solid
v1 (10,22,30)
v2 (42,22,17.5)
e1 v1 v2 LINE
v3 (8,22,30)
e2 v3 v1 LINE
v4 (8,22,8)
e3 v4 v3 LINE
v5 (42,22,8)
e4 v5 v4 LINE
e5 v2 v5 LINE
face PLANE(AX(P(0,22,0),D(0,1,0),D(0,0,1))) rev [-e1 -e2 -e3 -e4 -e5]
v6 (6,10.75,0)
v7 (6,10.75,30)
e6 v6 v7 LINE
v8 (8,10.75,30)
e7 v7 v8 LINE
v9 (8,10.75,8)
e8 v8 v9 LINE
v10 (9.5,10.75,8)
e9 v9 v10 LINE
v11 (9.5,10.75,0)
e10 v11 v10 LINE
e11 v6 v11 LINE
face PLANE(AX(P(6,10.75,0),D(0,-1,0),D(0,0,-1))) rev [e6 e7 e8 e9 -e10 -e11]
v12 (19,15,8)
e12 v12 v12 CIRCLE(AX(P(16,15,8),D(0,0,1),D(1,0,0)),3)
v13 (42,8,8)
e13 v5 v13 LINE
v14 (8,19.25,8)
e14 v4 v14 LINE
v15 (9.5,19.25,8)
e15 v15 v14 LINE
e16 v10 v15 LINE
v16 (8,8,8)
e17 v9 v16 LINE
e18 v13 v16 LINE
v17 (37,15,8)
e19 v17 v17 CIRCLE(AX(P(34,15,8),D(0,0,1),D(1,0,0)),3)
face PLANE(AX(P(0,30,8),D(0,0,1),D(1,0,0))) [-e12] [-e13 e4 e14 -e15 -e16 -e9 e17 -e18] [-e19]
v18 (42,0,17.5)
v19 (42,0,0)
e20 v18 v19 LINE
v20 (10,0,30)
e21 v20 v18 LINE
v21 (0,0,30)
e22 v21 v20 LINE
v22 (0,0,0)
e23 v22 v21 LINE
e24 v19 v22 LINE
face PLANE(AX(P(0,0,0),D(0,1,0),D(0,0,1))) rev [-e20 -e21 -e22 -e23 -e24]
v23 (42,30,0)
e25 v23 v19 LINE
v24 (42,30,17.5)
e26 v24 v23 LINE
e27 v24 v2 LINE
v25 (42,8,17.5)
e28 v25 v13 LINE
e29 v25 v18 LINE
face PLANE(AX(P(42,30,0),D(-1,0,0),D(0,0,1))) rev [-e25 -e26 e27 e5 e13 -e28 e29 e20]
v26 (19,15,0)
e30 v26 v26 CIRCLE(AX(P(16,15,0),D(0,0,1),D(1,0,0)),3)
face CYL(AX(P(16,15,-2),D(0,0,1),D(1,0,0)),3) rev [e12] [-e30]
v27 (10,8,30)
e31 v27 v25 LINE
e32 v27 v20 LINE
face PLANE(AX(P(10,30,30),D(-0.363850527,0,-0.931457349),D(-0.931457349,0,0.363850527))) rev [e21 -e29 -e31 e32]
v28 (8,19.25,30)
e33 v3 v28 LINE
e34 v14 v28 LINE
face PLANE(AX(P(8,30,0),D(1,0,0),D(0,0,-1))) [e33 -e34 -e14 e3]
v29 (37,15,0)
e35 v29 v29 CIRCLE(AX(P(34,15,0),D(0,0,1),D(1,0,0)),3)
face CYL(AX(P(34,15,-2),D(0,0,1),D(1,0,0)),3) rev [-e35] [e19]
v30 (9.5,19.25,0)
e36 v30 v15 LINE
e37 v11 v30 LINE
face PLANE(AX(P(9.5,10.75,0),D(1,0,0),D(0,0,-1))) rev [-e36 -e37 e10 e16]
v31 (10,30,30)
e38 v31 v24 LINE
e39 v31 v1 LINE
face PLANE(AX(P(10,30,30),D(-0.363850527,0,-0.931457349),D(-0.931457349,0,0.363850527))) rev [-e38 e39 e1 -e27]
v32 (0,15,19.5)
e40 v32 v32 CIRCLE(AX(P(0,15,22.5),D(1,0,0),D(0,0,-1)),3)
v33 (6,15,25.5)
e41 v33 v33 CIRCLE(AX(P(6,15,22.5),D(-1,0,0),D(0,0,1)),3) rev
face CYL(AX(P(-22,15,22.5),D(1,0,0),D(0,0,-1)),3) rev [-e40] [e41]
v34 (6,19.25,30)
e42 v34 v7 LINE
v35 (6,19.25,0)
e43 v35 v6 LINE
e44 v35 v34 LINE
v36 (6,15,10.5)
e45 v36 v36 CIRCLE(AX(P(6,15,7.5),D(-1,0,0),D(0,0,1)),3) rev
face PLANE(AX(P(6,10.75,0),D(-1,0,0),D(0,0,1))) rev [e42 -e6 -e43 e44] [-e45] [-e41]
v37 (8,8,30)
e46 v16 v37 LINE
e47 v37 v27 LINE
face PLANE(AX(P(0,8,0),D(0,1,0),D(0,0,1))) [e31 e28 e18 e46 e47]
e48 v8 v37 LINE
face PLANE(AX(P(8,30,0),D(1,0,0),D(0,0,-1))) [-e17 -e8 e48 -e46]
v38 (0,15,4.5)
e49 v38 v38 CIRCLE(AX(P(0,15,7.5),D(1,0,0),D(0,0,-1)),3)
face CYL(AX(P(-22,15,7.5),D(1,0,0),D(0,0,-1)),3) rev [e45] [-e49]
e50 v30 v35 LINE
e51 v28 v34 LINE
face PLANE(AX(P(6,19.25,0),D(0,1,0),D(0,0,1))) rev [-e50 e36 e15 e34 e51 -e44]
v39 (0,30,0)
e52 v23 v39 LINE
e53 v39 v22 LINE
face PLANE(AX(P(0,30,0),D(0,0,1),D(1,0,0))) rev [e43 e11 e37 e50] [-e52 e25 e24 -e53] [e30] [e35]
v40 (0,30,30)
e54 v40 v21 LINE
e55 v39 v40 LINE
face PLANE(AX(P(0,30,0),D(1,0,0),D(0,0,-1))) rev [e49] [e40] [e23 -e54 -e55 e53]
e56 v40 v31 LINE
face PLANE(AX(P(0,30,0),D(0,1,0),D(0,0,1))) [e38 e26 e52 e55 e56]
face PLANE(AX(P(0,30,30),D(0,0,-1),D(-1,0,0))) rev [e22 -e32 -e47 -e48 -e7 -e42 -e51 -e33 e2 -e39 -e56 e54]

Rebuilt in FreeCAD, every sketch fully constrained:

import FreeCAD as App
import Part
import Sketcher


def faces_at(feature, points):
    """Names of the faces that lie closest to the given points."""
    faces = feature.Shape.Faces
    near = lambda p: min(range(len(faces)), key=lambda i: faces[i].distToShape(Part.Vertex(*p))[0])
    return sorted({f"Face{near(p) + 1}" for p in points})

doc = App.newDocument("Part")
body = doc.addObject("PartDesign::Body", "Body")

# Sketch on XZ plane
sketch1 = body.newObject("Sketcher::SketchObject", "Sketch")
sketch1.AttachmentSupport = (doc.getObject("XZ_Plane"), [""])
sketch1.MapMode = "FlatFace"
sketch1.addGeometry([
    Part.LineSegment(App.Vector(10, 30, 0), App.Vector(42, 17.5, 0)),  # 0
    Part.LineSegment(App.Vector(42, 17.5, 0), App.Vector(42, 0, 0)),  # 1
    Part.LineSegment(App.Vector(42, 0, 0), App.Vector(0, 0, 0)),  # 2
    Part.LineSegment(App.Vector(0, 0, 0), App.Vector(0, 30, 0)),  # 3
    Part.LineSegment(App.Vector(0, 30, 0), App.Vector(10, 30, 0)),  # 4
], False)
sketch1.addConstraint([
    Sketcher.Constraint("Coincident", 0, 2, 1, 1),
    Sketcher.Constraint("Coincident", 1, 2, 2, 1),
    Sketcher.Constraint("Coincident", 2, 2, 3, 1),
    Sketcher.Constraint("Coincident", 3, 2, 4, 1),
    Sketcher.Constraint("Coincident", 4, 2, 0, 1),
    Sketcher.Constraint("Vertical", 1),
    Sketcher.Constraint("Horizontal", 2),
    Sketcher.Constraint("Vertical", 3),
    Sketcher.Constraint("Horizontal", 4),
    Sketcher.Constraint("Coincident", 2, 2, -1, 1),
    Sketcher.Constraint("DistanceX", 2, 2, 2, 1, 42.0),
    Sketcher.Constraint("DistanceX", 4, 1, 4, 2, 10.0),
    Sketcher.Constraint("DistanceY", 3, 1, 3, 2, 30.0),
    Sketcher.Constraint("DistanceY", 1, 2, 1, 1, 17.5),
])
pad1 = body.newObject("PartDesign::Pad", "Pad")
pad1.Profile = sketch1
pad1.Length = 30
pad1.Reversed = True
doc.recompute()

thickness = body.newObject("PartDesign::Thickness", "Thickness")
thickness.Base = (pad1, faces_at(pad1, [(42, 15, 8.75), (26, 15, 23.75), (5, 15, 30)]))
thickness.Value = 8
thickness.Reversed = True
thickness.Join = "Intersection"

# Sketch on YZ plane
sketch2 = body.newObject("Sketcher::SketchObject", "Sketch001")
sketch2.AttachmentSupport = (doc.getObject("YZ_Plane"), [""])
sketch2.MapMode = "FlatFace"
sketch2.AttachmentOffset = App.Placement(App.Vector(0, 0, 8), App.Rotation())
sketch2.addGeometry([
    Part.Circle(App.Vector(15, 22.5, 0), App.Vector(0, 0, 1), 3),
    Part.Circle(App.Vector(15, 7.5, 0), App.Vector(0, 0, 1), 3),
], False)
sketch2.addConstraint([
    Sketcher.Constraint("Equal", 0, 1),
    Sketcher.Constraint("Vertical", 0, 3, 1, 3),
    Sketcher.Constraint("Diameter", 0, 6.0),
    Sketcher.Constraint("DistanceX", -1, 1, 0, 3, 15.0),
    Sketcher.Constraint("DistanceY", 1, 3, 0, 3, 15.0),
    Sketcher.Constraint("DistanceY", -1, 1, 0, 3, 22.5),
])
pocket1 = body.newObject("PartDesign::Pocket", "Pocket")
pocket1.Profile = sketch2
pocket1.Length = 30

# Sketch on XY plane
sketch3 = body.newObject("Sketcher::SketchObject", "Sketch002")
sketch3.AttachmentSupport = (doc.getObject("XY_Plane"), [""])
sketch3.MapMode = "FlatFace"
sketch3.AttachmentOffset = App.Placement(App.Vector(0, 0, 8), App.Rotation())
sketch3.addGeometry([
    Part.Circle(App.Vector(16, 15, 0), App.Vector(0, 0, 1), 3),
    Part.Circle(App.Vector(34, 15, 0), App.Vector(0, 0, 1), 3),
], False)
sketch3.addConstraint([
    Sketcher.Constraint("Equal", 0, 1),
    Sketcher.Constraint("Horizontal", 0, 3, 1, 3),
    Sketcher.Constraint("Diameter", 0, 6.0),
    Sketcher.Constraint("DistanceX", -1, 1, 0, 3, 16.0),
    Sketcher.Constraint("DistanceY", -1, 1, 0, 3, 15.0),
    Sketcher.Constraint("DistanceX", -1, 1, 1, 3, 34.0),
])
pocket2 = body.newObject("PartDesign::Pocket", "Pocket001")
pocket2.Profile = sketch3
pocket2.Length = 10

# Sketch on XY plane
sketch4 = body.newObject("Sketcher::SketchObject", "Sketch003")
sketch4.AttachmentSupport = (doc.getObject("XY_Plane"), [""])
sketch4.MapMode = "FlatFace"
sketch4.AttachmentOffset = App.Placement(App.Vector(0, 0, 8), App.Rotation())
sketch4.addGeometry([
    Part.LineSegment(App.Vector(6, 19.25, 0), App.Vector(6, 10.75, 0)),
    Part.LineSegment(App.Vector(6, 10.75, 0), App.Vector(9.5, 10.75, 0)),
    Part.LineSegment(App.Vector(9.5, 10.75, 0), App.Vector(9.5, 19.25, 0)),
    Part.LineSegment(App.Vector(9.5, 19.25, 0), App.Vector(6, 19.25, 0)),
], False)
sketch4.addConstraint([
    Sketcher.Constraint("Coincident", 0, 2, 1, 1),
    Sketcher.Constraint("Coincident", 1, 2, 2, 1),
    Sketcher.Constraint("Coincident", 2, 2, 3, 1),
    Sketcher.Constraint("Coincident", 3, 2, 0, 1),
    Sketcher.Constraint("Vertical", 0),
    Sketcher.Constraint("Horizontal", 1),
    Sketcher.Constraint("Vertical", 2),
    Sketcher.Constraint("Horizontal", 3),
    Sketcher.Constraint("DistanceX", 1, 1, 1, 2, 3.5),
    Sketcher.Constraint("DistanceY", 0, 2, 0, 1, 8.5),
    Sketcher.Constraint("DistanceX", -1, 1, 0, 2, 6.0),
    Sketcher.Constraint("DistanceY", -1, 1, 0, 2, 10.75),
])
pocket3 = body.newObject("PartDesign::Pocket", "Pocket002")
pocket3.Profile = sketch4
pocket3.Type = "ThroughAll"
pocket3.Midplane = True

doc.recompute()
